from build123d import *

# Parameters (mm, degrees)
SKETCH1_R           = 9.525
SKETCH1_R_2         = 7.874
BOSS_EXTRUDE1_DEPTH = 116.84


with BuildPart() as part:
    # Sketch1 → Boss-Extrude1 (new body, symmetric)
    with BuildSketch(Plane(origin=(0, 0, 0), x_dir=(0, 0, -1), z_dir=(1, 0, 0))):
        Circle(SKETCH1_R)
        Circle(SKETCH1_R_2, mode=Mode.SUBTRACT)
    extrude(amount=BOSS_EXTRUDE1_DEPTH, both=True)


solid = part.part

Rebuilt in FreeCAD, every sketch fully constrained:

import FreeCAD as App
import Part
import Sketcher
Q = App.Units.Quantity

doc = App.newDocument("Part")
body = doc.addObject("PartDesign::Body", "Body")

sketch1 = body.newObject("Sketcher::SketchObject", "Sketch")
sketch1.AttachmentSupport = (doc.getObject("YZ_Plane"), [""])
sketch1.MapMode = "FlatFace"
sketch1.addGeometry(Part.Circle(App.Vector(0, 0, 0), App.Vector(0, 0, 1), 9.525), False)
sketch1.addGeometry(Part.Circle(App.Vector(0, 0, 0), App.Vector(0, 0, 1), 7.874), False)
sketch1.addConstraint(Sketcher.Constraint("Coincident", 0, 3, -1, 1))
sketch1.addConstraint(Sketcher.Constraint("Coincident", 1, 3, -1, 1))
sketch1.addConstraint(Sketcher.Constraint("Diameter", 0, Q("0.75 in")))
sketch1.addConstraint(Sketcher.Constraint("Diameter", 1, Q("0.62 in")))
pad1 = body.newObject("PartDesign::Pad", "Pad")
pad1.Profile = sketch1
pad1.Length = Q("9.2 in")
pad1.Midplane = True

doc.recompute()
